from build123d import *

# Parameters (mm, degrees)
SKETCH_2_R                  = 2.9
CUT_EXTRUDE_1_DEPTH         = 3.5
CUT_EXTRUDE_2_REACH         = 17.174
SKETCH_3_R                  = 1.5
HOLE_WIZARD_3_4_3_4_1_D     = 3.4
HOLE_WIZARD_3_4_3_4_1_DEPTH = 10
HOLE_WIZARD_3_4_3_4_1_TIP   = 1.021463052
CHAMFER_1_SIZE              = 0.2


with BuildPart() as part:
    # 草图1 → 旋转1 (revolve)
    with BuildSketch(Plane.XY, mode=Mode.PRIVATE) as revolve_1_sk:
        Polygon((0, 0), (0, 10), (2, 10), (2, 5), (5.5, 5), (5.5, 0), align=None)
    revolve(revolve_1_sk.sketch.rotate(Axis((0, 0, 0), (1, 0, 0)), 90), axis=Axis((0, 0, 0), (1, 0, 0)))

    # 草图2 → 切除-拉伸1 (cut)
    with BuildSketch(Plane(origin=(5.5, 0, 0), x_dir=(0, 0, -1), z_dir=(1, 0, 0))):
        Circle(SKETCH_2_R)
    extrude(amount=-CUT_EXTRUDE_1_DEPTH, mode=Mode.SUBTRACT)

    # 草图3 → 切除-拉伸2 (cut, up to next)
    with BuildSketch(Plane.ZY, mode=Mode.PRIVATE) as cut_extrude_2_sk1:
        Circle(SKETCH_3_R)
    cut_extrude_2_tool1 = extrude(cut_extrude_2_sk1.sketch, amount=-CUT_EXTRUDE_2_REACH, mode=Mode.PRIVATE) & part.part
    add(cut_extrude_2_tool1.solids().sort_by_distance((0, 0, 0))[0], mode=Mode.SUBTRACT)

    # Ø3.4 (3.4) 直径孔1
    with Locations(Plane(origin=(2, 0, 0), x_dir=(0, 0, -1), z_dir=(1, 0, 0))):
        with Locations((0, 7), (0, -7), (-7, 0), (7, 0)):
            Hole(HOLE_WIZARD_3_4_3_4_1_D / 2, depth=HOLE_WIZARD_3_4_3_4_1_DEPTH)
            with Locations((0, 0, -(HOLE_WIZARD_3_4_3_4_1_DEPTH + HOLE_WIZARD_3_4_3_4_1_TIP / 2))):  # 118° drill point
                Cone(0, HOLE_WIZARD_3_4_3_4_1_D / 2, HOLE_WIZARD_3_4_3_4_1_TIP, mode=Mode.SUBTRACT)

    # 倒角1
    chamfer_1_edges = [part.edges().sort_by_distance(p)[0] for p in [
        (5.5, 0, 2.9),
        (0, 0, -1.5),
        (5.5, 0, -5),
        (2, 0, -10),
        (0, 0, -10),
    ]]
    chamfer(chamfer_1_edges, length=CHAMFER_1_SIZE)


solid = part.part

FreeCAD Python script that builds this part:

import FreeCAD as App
import Part
import Sketcher


def edges_at(feature, points):
    """Names of the edges that pass closest to the given points."""
    edges = feature.Shape.Edges
    near = lambda p: min(range(len(edges)), key=lambda i: edges[i].distToShape(Part.Vertex(*p))[0])
    return sorted({f"Edge{near(p) + 1}" for p in points})


def add_polygon(sketch, points):
    """Adds a closed chain of lines whose ends are joined by coincident constraints."""
    first, n = sketch.GeometryCount, len(points)
    for a, b in zip(points, points[1:] + points[:1]):
        sketch.addGeometry(Part.LineSegment(App.Vector(*a, 0), App.Vector(*b, 0)), False)
    for i in range(n):
        sketch.addConstraint(Sketcher.Constraint("Coincident", first + i, 2, first + (i + 1) % n, 1))

doc = App.newDocument("Part")
params = doc.addObject("Spreadsheet::Sheet", "Params")
for row, (alias, value) in enumerate([
    ("sketch1_width", "2 mm"),
    ("sketch1_height", "10 mm"),
    ("sketch1_width2", "5.5 mm"),
    ("revolution_angle", "360 deg"),
    ("sketch2_diameter", "5.8 mm"),
    ("pocket1_length", "3.5 mm"),
    ("sketch3_diameter", "3 mm"),
    ("sketch4_diameter", "3.4 mm"),
    ("hole_diameter", "3.4 mm"),
    ("hole_depth", "10 mm"),
    ("chamfer_size", "0.2 mm"),
], start=1):
    params.set(f"A{row}", alias)
    params.set(f"B{row}", "=" + value)
    params.setAlias(f"B{row}", alias)

body = doc.addObject("PartDesign::Body", "Body")

# Sketch on XY plane
sketch1 = doc.addObject("Sketcher::SketchObject", "Sketch")
body.addObject(sketch1)
sketch1.AttachmentSupport = (doc.XY_Plane, [""])
sketch1.MapMode = "FlatFace"
add_polygon(sketch1, [(0, 10), (0, 0), (5.5, 0), (5.5, 5), (2, 5), (2, 10)])  # lines 0-5
sketch1.addConstraint([
    Sketcher.Constraint("Vertical", 0),
    Sketcher.Constraint("Horizontal", 1),
    Sketcher.Constraint("Vertical", 2),
    Sketcher.Constraint("Horizontal", 3),
    Sketcher.Constraint("Vertical", 4),
    Sketcher.Constraint("Horizontal", 5),
    Sketcher.Constraint("Coincident", 0, 2, -1, 1),
    Sketcher.Constraint("Equal", 2, 4),
    Sketcher.Constraint("DistanceX", 5, 2, 5, 1, 2.0),
    Sketcher.Constraint("DistanceY", 0, 2, 0, 1, 10.0),
    Sketcher.Constraint("DistanceX", 1, 1, 1, 2, 5.5),
])
sketch1.setExpression("Constraints[14]", "Params.sketch1_width")
sketch1.setExpression("Constraints[15]", "Params.sketch1_height")
sketch1.setExpression("Constraints[16]", "Params.sketch1_width2")
revolution = doc.addObject("PartDesign::Revolution", "Revolution")
body.addObject(revolution)
revolution.Profile = sketch1
revolution.ReferenceAxis = (sketch1, ["H_Axis"])
revolution.setExpression("Angle", "Params.revolution_angle")

# Sketch on YZ plane
sketch2 = doc.addObject("Sketcher::SketchObject", "Sketch001")
body.addObject(sketch2)
sketch2.AttachmentSupport = (doc.YZ_Plane, [""])
sketch2.MapMode = "FlatFace"
sketch2.AttachmentOffset = App.Placement(App.Vector(0, 0, 5.5), App.Rotation())
sketch2.addGeometry(Part.Circle(App.Vector(0, 0, 0), App.Vector(0, 0, 1), 2.9), False)
sketch2.addConstraint([
    Sketcher.Constraint("Coincident", 0, 3, -1, 1),
    Sketcher.Constraint("Diameter", 0, 5.8),
])
sketch2.setExpression("Constraints[1]", "Params.sketch2_diameter")
pocket1 = doc.addObject("PartDesign::Pocket", "Pocket")
body.addObject(pocket1)
pocket1.Profile = sketch2
pocket1.setExpression("Length", "Params.pocket1_length")

# Sketch on YZ plane
sketch3 = doc.addObject("Sketcher::SketchObject", "Sketch002")
body.addObject(sketch3)
sketch3.AttachmentSupport = (doc.YZ_Plane, [""])
sketch3.MapMode = "FlatFace"
sketch3.addGeometry(Part.Circle(App.Vector(0, 0, 0), App.Vector(0, 0, 1), 1.5), False)
sketch3.addConstraint([
    Sketcher.Constraint("Coincident", 0, 3, -1, 1),
    Sketcher.Constraint("Diameter", 0, 3.0),
])
sketch3.setExpression("Constraints[1]", "Params.sketch3_diameter")
pocket2 = doc.addObject("PartDesign::Pocket", "Pocket001")
body.addObject(pocket2)
pocket2.Profile = sketch3
pocket2.Type = "UpToFirst"
pocket2.Reversed = True

# Sketch on YZ plane
sketch4 = doc.addObject("Sketcher::SketchObject", "Sketch003")
body.addObject(sketch4)
sketch4.AttachmentSupport = (doc.YZ_Plane, [""])
sketch4.MapMode = "FlatFace"
sketch4.AttachmentOffset = App.Placement(App.Vector(0, 0, 2), App.Rotation())
sketch4.addGeometry([
    Part.Circle(App.Vector(7, 0, 0), App.Vector(0, 0, 1), 1.7),
    Part.Circle(App.Vector(-7, 0, 0), App.Vector(0, 0, 1), 1.7),
    Part.Circle(App.Vector(0, 7, 0), App.Vector(0, 0, 1), 1.7),
    Part.Circle(App.Vector(0, -7, 0), App.Vector(0, 0, 1), 1.7),
], False)
sketch4.addConstraint([
    Sketcher.Constraint("Equal", 0, 1),
    Sketcher.Constraint("Equal", 1, 2),
    Sketcher.Constraint("Equal", 2, 3),
    Sketcher.Constraint("Symmetric", 0, 3, 1, 3, -1, 1),
    Sketcher.Constraint("Symmetric", 2, 3, 3, 3, -1, 1),
    Sketcher.Constraint("PointOnObject", 0, 3, -1),
    Sketcher.Constraint("PointOnObject", 2, 3, -2),
    Sketcher.Constraint("Diameter", 0, 3.4),
    Sketcher.Constraint("DistanceX", -1, 1, 0, 3, 7.0),
    Sketcher.Constraint("DistanceY", -1, 1, 2, 3, 7.0),
])
sketch4.setExpression("Constraints[7]", "Params.sketch4_diameter")
doc.recompute()
hole = doc.addObject("PartDesign::Hole", "Hole")
body.addObject(hole)
hole.Profile = sketch4
hole.ThreadType = "None"
hole.setExpression("Diameter", "Params.hole_diameter")
hole.DepthType = "Dimension"
hole.setExpression("Depth", "Params.hole_depth")
hole.DrillPoint = "Angled"
hole.DrillPointAngle = 118
doc.recompute()

chamfer = doc.addObject("PartDesign::Chamfer", "Chamfer")
body.addObject(chamfer)
chamfer.Base = (hole, edges_at(hole, [
    (5.5, 0, 2.9),
    (0, 0, -1.5),
    (5.5, 0, -5),
    (2, 0, -10),
    (0, 0, -10),
]))
chamfer.setExpression("Size", "Params.chamfer_size")

doc.recompute()
